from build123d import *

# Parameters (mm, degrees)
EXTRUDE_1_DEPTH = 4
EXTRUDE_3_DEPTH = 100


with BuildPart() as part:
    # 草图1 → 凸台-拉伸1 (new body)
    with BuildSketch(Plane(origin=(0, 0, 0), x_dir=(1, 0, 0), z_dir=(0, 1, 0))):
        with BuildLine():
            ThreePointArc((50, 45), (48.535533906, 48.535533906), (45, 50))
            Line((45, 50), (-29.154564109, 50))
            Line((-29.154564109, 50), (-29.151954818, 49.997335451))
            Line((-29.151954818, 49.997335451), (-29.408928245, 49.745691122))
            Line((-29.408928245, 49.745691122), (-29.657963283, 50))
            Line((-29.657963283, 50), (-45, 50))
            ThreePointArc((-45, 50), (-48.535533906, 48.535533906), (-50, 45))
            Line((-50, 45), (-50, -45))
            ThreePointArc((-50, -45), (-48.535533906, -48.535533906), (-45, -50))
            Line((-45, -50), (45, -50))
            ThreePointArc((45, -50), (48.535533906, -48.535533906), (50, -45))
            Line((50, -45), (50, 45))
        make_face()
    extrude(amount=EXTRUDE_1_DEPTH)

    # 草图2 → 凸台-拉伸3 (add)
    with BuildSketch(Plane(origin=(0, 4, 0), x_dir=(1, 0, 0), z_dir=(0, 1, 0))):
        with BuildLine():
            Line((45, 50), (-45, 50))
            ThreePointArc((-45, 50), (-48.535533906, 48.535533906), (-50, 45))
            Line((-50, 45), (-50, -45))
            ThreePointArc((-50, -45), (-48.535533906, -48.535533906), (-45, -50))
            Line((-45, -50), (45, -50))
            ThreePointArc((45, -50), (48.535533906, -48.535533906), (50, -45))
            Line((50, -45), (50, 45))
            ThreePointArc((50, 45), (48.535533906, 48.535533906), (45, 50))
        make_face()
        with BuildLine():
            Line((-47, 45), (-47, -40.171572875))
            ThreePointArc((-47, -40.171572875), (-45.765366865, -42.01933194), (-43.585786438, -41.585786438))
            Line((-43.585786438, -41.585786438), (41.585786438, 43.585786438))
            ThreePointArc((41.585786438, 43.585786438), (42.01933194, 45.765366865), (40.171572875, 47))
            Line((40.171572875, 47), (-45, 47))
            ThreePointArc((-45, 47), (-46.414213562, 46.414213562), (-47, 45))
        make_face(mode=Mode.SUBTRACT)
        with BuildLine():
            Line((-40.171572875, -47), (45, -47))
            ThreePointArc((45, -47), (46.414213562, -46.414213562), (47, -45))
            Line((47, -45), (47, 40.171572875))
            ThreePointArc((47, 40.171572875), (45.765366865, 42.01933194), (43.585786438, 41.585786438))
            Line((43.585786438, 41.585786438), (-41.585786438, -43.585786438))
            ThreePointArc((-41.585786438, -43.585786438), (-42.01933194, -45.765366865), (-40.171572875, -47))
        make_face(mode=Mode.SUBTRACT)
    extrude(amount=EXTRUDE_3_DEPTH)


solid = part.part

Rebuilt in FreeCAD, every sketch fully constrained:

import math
import FreeCAD as App
import Part
import Sketcher
Q = App.Units.Quantity

doc = App.newDocument("Part")
body = doc.addObject("PartDesign::Body", "Body")

# Sketch on XZ plane
sketch1 = body.newObject("Sketcher::SketchObject", "Sketch")
sketch1.AttachmentSupport = (doc.getObject("XZ_Plane"), [""])
sketch1.MapMode = "FlatFace"
sketch1.addGeometry([
    Part.ArcOfCircle(Part.Circle(App.Vector(45, -45, 0), App.Vector(0, 0, 1), 5), math.radians(-90), math.radians(0)),  # 0
    Part.LineSegment(App.Vector(45, -50, 0), App.Vector(-29.1546, -50, 0)),  # 1
    Part.LineSegment(App.Vector(-29.1546, -50, 0), App.Vector(-29.152, -49.9973, 0)),  # 2
    Part.LineSegment(App.Vector(-29.152, -49.9973, 0), App.Vector(-29.4089, -49.7457, 0)),  # 3
    Part.LineSegment(App.Vector(-29.4089, -49.7457, 0), App.Vector(-29.658, -50, 0)),  # 4
    Part.LineSegment(App.Vector(-29.658, -50, 0), App.Vector(-45, -50, 0)),  # 5
    Part.ArcOfCircle(Part.Circle(App.Vector(-45, -45, 0), App.Vector(0, 0, 1), 5), math.radians(180), math.radians(270)),  # 6
    Part.LineSegment(App.Vector(-50, -45, 0), App.Vector(-50, 45, 0)),  # 7
    Part.ArcOfCircle(Part.Circle(App.Vector(-45, 45, 0), App.Vector(0, 0, 1), 5), math.radians(90), math.radians(180)),  # 8
    Part.LineSegment(App.Vector(-45, 50, 0), App.Vector(45, 50, 0)),  # 9
    Part.ArcOfCircle(Part.Circle(App.Vector(45, 45, 0), App.Vector(0, 0, 1), 5), math.radians(0), math.radians(90)),  # 10
    Part.LineSegment(App.Vector(50, 45, 0), App.Vector(50, -45, 0)),  # 11
], False)
sketch1.addConstraint([
    Sketcher.Constraint("Tangent", 0, 1, 1, 1),
    Sketcher.Constraint("Coincident", 1, 2, 2, 1),
    Sketcher.Constraint("Coincident", 2, 2, 3, 1),
    Sketcher.Constraint("Coincident", 3, 2, 4, 1),
    Sketcher.Constraint("Coincident", 4, 2, 5, 1),
    Sketcher.Constraint("Tangent", 5, 2, 6, 2),
    Sketcher.Constraint("Tangent", 6, 1, 7, 1),
    Sketcher.Constraint("Tangent", 7, 2, 8, 2),
    Sketcher.Constraint("Tangent", 8, 1, 9, 1),
    Sketcher.Constraint("Tangent", 9, 2, 10, 2),
    Sketcher.Constraint("Tangent", 10, 1, 11, 1),
    Sketcher.Constraint("Tangent", 11, 2, 0, 2),
    Sketcher.Constraint("Horizontal", 1),
    Sketcher.Constraint("Horizontal", 5),
    Sketcher.Constraint("Vertical", 7),
    Sketcher.Constraint("Horizontal", 9),
    Sketcher.Constraint("Vertical", 11),
    Sketcher.Constraint("Equal", 0, 6),
    Sketcher.Constraint("Equal", 6, 8),
    Sketcher.Constraint("Equal", 8, 10),
    Sketcher.Constraint("Symmetric", 0, 3, 8, 3, -1, 1),
    Sketcher.Constraint("Perpendicular", 2, 3),
    Sketcher.Constraint("Perpendicular", 3, 4),
    Sketcher.Constraint("Horizontal", 0, 3, 6, 3),
    Sketcher.Constraint("Equal", 9, 7),
    Sketcher.Constraint("Radius", 0, Q("5 mm")),
    Sketcher.Constraint("DistanceX", 9, 1, 9, 2, Q("90 mm")),
    Sketcher.Constraint("DistanceX", 4, 2, 1, 2, Q("0.503399 mm")),
    Sketcher.Constraint("Distance", 2, Q("0.003729 mm")),
    Sketcher.Constraint("DistanceX", 1, 2, 1, 1, Q("74.154564 mm")),
    Sketcher.Constraint("DistanceX", 3, 2, -1, 1, Q("29.408928 mm")),
])
pad1 = body.newObject("PartDesign::Pad", "Pad")
pad1.Profile = sketch1
pad1.Length = 4
pad1.Reversed = True

# Sketch on XZ plane
sketch2 = body.newObject("Sketcher::SketchObject", "Sketch001")
sketch2.AttachmentSupport = (doc.getObject("XZ_Plane"), [""])
sketch2.MapMode = "FlatFace"
sketch2.AttachmentOffset = App.Placement(App.Vector(0, 0, -4), App.Rotation())
sketch2.addGeometry([
    Part.LineSegment(App.Vector(45, -50, 0), App.Vector(-45, -50, 0)),  # 0
    Part.ArcOfCircle(Part.Circle(App.Vector(-45, -45, 0), App.Vector(0, 0, 1), 5), math.radians(180), math.radians(270)),  # 1
    Part.LineSegment(App.Vector(-50, -45, 0), App.Vector(-50, 45, 0)),  # 2
    Part.ArcOfCircle(Part.Circle(App.Vector(-45, 45, 0), App.Vector(0, 0, 1), 5), math.radians(90), math.radians(180)),  # 3
    Part.LineSegment(App.Vector(-45, 50, 0), App.Vector(45, 50, 0)),  # 4
    Part.ArcOfCircle(Part.Circle(App.Vector(45, 45, 0), App.Vector(0, 0, 1), 5), math.radians(0), math.radians(90)),  # 5
    Part.LineSegment(App.Vector(50, 45, 0), App.Vector(50, -45, 0)),  # 6
    Part.ArcOfCircle(Part.Circle(App.Vector(45, -45, 0), App.Vector(0, 0, 1), 5), math.radians(-90), math.radians(0)),  # 7
    Part.LineSegment(App.Vector(45, 47, 0), App.Vector(-40.2, 47, 0)),  # 8
    Part.ArcOfCircle(Part.Circle(App.Vector(-40.2, 45, 0), App.Vector(0, 0, 1), 2), math.radians(90), math.radians(225)),  # 9
    Part.LineSegment(App.Vector(-41.6, 43.6, 0), App.Vector(43.6, -41.6, 0)),  # 10
    Part.ArcOfCircle(Part.Circle(App.Vector(45, -40.2, 0), App.Vector(0, 0, 1), 2), math.radians(-135), math.radians(0)),  # 11
    Part.LineSegment(App.Vector(47, -40.2, 0), App.Vector(47, 45, 0)),  # 12
    Part.ArcOfCircle(Part.Circle(App.Vector(45, 45, 0), App.Vector(0, 0, 1), 2), math.radians(0), math.radians(90)),  # 13
    Part.LineSegment(App.Vector(-47, 40.2, 0), App.Vector(-47, -45, 0)),  # 14
    Part.ArcOfCircle(Part.Circle(App.Vector(-45, -45, 0), App.Vector(0, 0, 1), 2), math.radians(-180), math.radians(-90)),  # 15
    Part.LineSegment(App.Vector(-45, -47, 0), App.Vector(40.2, -47, 0)),  # 16
    Part.ArcOfCircle(Part.Circle(App.Vector(40.2, -45, 0), App.Vector(0, 0, 1), 2), math.radians(-90), math.radians(45)),  # 17
    Part.LineSegment(App.Vector(41.6, -43.6, 0), App.Vector(-43.6, 41.6, 0)),  # 18
    Part.ArcOfCircle(Part.Circle(App.Vector(-45, 40.2, 0), App.Vector(0, 0, 1), 2), math.radians(45), math.radians(180)),  # 19
], False)
sketch2.addConstraint([
    Sketcher.Constraint("Tangent", 0, 2, 1, 2),
    Sketcher.Constraint("Tangent", 1, 1, 2, 1),
    Sketcher.Constraint("Tangent", 2, 2, 3, 2),
    Sketcher.Constraint("Tangent", 3, 1, 4, 1),
    Sketcher.Constraint("Tangent", 4, 2, 5, 2),
    Sketcher.Constraint("Tangent", 5, 1, 6, 1),
    Sketcher.Constraint("Tangent", 6, 2, 7, 2),
    Sketcher.Constraint("Tangent", 7, 1, 0, 1),
    Sketcher.Constraint("Tangent", 8, 2, 9, 1),
    Sketcher.Constraint("Tangent", 9, 2, 10, 1),
    Sketcher.Constraint("Tangent", 10, 2, 11, 1),
    Sketcher.Constraint("Tangent", 11, 2, 12, 1),
    Sketcher.Constraint("Tangent", 12, 2, 13, 1),
    Sketcher.Constraint("Tangent", 13, 2, 8, 1),
    Sketcher.Constraint("Tangent", 14, 2, 15, 1),
    Sketcher.Constraint("Tangent", 15, 2, 16, 1),
    Sketcher.Constraint("Tangent", 16, 2, 17, 1),
    Sketcher.Constraint("Tangent", 17, 2, 18, 1),
    Sketcher.Constraint("Tangent", 18, 2, 19, 1),
    Sketcher.Constraint("Tangent", 19, 2, 14, 1),
    Sketcher.Constraint("Horizontal", 0),
    Sketcher.Constraint("Vertical", 2),
    Sketcher.Constraint("Horizontal", 4),
    Sketcher.Constraint("Vertical", 6),
    Sketcher.Constraint("Horizontal", 8),
    Sketcher.Constraint("Vertical", 12),
    Sketcher.Constraint("Vertical", 14),
    Sketcher.Constraint("Horizontal", 16),
    Sketcher.Constraint("Coincident", 13, 3, 5, 3),
    Sketcher.Constraint("Coincident", 15, 3, 1, 3),
    Sketcher.Constraint("Equal", 1, 3),
    Sketcher.Constraint("Equal", 3, 5),
    Sketcher.Constraint("Equal", 5, 7),
    Sketcher.Constraint("Equal", 9, 11),
    Sketcher.Constraint("Equal", 11, 13),
    Sketcher.Constraint("Equal", 13, 15),
    Sketcher.Constraint("Equal", 15, 17),
    Sketcher.Constraint("Equal", 17, 19),
    Sketcher.Constraint("Symmetric", 1, 3, 5, 3, -1, 1),
    Sketcher.Constraint("Symmetric", 9, 2, 17, 2, -1, 1),
    Sketcher.Constraint("Equal", 4, 2),
    Sketcher.Constraint("Equal", 16, 12),
    Sketcher.Constraint("Radius", 1, Q("5 mm")),
    Sketcher.Constraint("Radius", 9, Q("2 mm")),
    Sketcher.Constraint("DistanceX", 0, 2, 0, 1, Q("90 mm")),
    Sketcher.Constraint("DistanceX", 17, 2, 10, 2, Q("2 mm")),
])
pad2 = body.newObject("PartDesign::Pad", "Pad001")
pad2.Profile = sketch2
pad2.Length = 100
pad2.Reversed = True

doc.recompute()
